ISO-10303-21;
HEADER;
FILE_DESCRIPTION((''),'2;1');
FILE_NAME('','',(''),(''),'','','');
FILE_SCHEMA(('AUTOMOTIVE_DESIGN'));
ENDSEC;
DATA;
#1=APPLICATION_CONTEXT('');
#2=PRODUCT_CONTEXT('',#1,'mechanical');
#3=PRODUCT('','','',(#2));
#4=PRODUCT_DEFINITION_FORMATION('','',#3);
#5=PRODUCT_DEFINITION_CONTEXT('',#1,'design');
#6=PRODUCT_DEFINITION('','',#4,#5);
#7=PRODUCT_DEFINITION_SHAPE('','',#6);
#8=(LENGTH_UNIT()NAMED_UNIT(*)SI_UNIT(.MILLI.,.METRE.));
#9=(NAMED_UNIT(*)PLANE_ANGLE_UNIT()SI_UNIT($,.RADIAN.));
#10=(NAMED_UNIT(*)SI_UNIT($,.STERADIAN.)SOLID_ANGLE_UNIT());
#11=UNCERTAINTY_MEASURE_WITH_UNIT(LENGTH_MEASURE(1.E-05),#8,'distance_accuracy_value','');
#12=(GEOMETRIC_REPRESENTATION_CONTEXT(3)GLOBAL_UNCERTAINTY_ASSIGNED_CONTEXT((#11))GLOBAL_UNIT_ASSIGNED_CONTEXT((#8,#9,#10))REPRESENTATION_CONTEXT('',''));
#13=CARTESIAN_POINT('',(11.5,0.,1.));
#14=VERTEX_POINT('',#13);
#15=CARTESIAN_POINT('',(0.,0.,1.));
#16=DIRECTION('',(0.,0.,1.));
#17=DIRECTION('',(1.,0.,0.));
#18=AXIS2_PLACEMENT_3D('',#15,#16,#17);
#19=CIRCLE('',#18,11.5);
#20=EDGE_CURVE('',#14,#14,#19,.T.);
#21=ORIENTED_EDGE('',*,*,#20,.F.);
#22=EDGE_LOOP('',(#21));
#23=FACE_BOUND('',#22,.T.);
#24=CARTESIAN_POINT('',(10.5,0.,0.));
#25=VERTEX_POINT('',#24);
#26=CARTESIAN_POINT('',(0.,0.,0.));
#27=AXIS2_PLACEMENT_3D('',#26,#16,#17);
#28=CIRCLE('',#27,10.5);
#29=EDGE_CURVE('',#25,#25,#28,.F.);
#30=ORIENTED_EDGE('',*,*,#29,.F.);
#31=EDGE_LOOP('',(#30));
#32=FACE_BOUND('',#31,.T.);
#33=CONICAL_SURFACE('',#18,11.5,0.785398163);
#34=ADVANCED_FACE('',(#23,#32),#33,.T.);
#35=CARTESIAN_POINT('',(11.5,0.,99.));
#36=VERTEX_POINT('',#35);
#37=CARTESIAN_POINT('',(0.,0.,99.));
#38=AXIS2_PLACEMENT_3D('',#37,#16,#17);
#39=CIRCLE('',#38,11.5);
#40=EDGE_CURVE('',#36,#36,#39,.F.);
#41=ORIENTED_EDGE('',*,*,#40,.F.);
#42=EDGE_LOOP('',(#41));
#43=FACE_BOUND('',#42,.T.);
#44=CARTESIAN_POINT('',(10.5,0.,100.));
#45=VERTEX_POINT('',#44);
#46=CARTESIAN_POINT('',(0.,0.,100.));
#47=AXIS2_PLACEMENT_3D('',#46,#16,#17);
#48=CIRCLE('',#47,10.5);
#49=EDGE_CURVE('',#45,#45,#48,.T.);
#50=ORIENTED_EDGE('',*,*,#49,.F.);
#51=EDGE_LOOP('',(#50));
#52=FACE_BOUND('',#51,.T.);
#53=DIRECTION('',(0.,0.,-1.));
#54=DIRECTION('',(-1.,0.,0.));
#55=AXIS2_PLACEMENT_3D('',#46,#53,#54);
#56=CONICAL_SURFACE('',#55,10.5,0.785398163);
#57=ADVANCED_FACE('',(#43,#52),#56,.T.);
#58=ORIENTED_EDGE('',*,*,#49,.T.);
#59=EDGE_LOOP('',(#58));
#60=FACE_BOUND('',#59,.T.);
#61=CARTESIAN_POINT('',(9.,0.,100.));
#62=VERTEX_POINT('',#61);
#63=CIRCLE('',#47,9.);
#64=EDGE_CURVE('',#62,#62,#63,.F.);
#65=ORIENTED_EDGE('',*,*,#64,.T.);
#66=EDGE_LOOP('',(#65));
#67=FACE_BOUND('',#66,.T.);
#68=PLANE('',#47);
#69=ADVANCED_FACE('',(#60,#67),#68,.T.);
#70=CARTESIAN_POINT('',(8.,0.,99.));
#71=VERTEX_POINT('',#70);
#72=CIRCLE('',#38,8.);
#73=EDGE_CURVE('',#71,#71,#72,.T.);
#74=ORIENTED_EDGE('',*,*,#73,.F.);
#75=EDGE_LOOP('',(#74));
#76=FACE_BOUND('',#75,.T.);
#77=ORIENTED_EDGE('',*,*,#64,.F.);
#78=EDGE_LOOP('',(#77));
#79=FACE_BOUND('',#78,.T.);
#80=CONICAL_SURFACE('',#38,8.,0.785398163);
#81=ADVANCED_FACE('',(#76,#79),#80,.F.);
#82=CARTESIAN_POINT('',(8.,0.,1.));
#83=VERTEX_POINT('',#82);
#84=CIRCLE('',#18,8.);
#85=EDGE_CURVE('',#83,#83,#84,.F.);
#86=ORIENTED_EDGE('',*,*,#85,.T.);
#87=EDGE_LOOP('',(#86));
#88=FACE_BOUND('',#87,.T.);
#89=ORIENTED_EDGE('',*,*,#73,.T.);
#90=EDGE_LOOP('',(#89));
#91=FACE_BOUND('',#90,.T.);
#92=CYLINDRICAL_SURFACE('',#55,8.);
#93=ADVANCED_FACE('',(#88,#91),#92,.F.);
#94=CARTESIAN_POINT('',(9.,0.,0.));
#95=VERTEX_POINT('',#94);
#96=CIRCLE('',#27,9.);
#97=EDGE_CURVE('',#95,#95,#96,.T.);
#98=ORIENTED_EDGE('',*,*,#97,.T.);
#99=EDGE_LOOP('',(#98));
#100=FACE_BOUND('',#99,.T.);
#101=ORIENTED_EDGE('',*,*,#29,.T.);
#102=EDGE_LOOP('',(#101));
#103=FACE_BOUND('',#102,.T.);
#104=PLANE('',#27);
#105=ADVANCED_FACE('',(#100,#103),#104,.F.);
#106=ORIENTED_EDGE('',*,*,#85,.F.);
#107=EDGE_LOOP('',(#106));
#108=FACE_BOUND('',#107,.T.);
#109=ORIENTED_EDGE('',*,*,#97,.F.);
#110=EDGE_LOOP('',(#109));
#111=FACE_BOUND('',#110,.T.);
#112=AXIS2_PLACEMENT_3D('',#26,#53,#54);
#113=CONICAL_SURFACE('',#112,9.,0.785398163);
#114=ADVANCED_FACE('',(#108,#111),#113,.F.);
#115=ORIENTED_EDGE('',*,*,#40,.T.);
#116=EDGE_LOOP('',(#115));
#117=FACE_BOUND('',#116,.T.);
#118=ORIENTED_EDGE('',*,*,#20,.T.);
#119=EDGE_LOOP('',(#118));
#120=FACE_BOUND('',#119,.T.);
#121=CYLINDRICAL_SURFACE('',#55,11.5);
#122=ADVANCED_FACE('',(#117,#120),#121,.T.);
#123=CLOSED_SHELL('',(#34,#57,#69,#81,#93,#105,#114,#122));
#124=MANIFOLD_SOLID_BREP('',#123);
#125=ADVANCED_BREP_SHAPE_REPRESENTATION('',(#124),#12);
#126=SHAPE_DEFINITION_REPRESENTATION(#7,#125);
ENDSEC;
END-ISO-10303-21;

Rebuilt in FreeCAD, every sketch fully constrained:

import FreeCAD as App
import Part
import Sketcher

V = App.Vector


def edges_at(feature, points):
    """Names of the edges that pass closest to the given points."""
    edges = feature.Shape.Edges
    near = lambda p: min(range(len(edges)), key=lambda i: edges[i].distToShape(Part.Vertex(*p))[0])
    return sorted({f"Edge{near(p) + 1}" for p in points})

doc = App.newDocument("Part")
params = doc.addObject("Spreadsheet::Sheet", "Params")
for row, (alias, value) in enumerate([
    ("sketch1_diameter", "23 mm"),
    ("sketch1_diameter2", "16 mm"),
    ("pad1_length", "100 mm"),
    ("chamfer_size", "1 mm"),
], start=1):
    params.set(f"A{row}", alias)
    params.set(f"B{row}", "=" + value)
    params.setAlias(f"B{row}", alias)

body = doc.addObject("PartDesign::Body", "Body")

# Sketch on XY plane
sketch1 = body.newObject("Sketcher::SketchObject", "Sketch")
sketch1.AttachmentSupport = (doc.getObject("XY_Plane"), [""])
sketch1.MapMode = "FlatFace"
sketch1.addGeometry([
    Part.Circle(V(0, 0, 0), V(0, 0, 1), 12),
    Part.Circle(V(0, 0, 0), V(0, 0, 1), 8),
], False)
sketch1.addConstraint([
    Sketcher.Constraint("Coincident", 0, 3, -1, 1),
    Sketcher.Constraint("Coincident", 1, 3, -1, 1),
    Sketcher.Constraint("Diameter", 0, 23.0),
    Sketcher.Constraint("Diameter", 1, 16.0),
])
sketch1.setExpression("Constraints[2]", "Params.sketch1_diameter")
sketch1.setExpression("Constraints[3]", "Params.sketch1_diameter2")
pad1 = body.newObject("PartDesign::Pad", "Pad")
pad1.Profile = sketch1
pad1.setExpression("Length", "Params.pad1_length")
doc.recompute()

chamfer = body.newObject("PartDesign::Chamfer", "Chamfer")
chamfer.Base = (pad1, edges_at(pad1, [
    (-11.5, 0, 0),
    (-11.5, 0, 100),
    (-8, 0, 0),
    (-8, 0, 100),
]))
chamfer.setExpression("Size", "Params.chamfer_size")

doc.recompute()
